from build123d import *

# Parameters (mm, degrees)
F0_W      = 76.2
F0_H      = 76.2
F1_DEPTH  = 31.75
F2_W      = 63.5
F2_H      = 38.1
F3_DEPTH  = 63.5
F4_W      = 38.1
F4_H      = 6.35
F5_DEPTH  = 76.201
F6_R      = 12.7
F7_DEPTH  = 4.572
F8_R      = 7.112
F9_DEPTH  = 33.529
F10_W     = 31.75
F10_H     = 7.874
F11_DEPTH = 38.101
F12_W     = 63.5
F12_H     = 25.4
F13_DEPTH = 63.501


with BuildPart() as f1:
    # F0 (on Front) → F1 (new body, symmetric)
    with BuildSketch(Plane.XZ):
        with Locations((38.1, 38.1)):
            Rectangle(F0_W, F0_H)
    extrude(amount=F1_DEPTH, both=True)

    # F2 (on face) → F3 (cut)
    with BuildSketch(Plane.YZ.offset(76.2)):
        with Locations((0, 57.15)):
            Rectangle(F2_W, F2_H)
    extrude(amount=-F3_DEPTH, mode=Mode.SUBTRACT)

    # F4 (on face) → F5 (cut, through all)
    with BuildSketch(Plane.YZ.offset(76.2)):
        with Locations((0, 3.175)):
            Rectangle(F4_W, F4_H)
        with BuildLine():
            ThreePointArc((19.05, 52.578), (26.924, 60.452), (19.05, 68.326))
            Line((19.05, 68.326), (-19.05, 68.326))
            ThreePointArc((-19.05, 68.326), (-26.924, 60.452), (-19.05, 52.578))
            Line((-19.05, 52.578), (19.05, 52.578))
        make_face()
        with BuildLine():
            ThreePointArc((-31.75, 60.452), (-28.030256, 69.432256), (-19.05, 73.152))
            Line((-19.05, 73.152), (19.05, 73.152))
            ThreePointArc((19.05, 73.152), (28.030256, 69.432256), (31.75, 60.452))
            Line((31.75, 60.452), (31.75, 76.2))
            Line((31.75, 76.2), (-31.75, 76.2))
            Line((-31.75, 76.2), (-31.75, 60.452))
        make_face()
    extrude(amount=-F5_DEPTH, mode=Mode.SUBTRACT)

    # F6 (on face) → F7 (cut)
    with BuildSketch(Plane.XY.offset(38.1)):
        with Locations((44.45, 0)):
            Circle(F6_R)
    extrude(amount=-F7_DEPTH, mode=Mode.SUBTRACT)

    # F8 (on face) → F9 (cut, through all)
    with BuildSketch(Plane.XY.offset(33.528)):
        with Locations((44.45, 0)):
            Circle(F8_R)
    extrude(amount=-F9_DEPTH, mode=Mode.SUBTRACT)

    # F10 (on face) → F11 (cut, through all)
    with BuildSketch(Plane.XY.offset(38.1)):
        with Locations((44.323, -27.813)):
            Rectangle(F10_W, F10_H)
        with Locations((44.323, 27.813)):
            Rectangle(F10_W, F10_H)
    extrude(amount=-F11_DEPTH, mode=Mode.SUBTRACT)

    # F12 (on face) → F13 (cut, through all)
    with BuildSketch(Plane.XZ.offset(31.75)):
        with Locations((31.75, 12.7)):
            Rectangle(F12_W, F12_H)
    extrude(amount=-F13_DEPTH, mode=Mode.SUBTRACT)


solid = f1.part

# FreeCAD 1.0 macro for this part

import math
import FreeCAD as App
import Part
import Sketcher
Q = App.Units.Quantity

doc = App.newDocument("Part")
body = doc.addObject("PartDesign::Body", "Body")

# Sketch on XZ plane
sketch1 = body.newObject("Sketcher::SketchObject", "Sketch")
sketch1.AttachmentSupport = (doc.getObject("XZ_Plane"), [""])
sketch1.MapMode = "FlatFace"
sketch1.addGeometry(Part.LineSegment(App.Vector(0, 76, 0), App.Vector(0, 0, 0)), False)
sketch1.addGeometry(Part.LineSegment(App.Vector(0, 0, 0), App.Vector(76, 0, 0)), False)
sketch1.addGeometry(Part.LineSegment(App.Vector(76, 0, 0), App.Vector(76, 76, 0)), False)
sketch1.addGeometry(Part.LineSegment(App.Vector(76, 76, 0), App.Vector(0, 76, 0)), False)
sketch1.addConstraint(Sketcher.Constraint("Coincident", 0, 2, 1, 1))
sketch1.addConstraint(Sketcher.Constraint("Coincident", 1, 2, 2, 1))
sketch1.addConstraint(Sketcher.Constraint("Coincident", 2, 2, 3, 1))
sketch1.addConstraint(Sketcher.Constraint("Coincident", 3, 2, 0, 1))
sketch1.addConstraint(Sketcher.Constraint("Vertical", 0))
sketch1.addConstraint(Sketcher.Constraint("Horizontal", 1))
sketch1.addConstraint(Sketcher.Constraint("Vertical", 2))
sketch1.addConstraint(Sketcher.Constraint("Horizontal", 3))
sketch1.addConstraint(Sketcher.Constraint("Coincident", 0, 2, -1, 1))
sketch1.addConstraint(Sketcher.Constraint("Equal", 3, 0))
sketch1.addConstraint(Sketcher.Constraint("DistanceX", 1, 1, 1, 2, Q("3 in")))
pad1 = body.newObject("PartDesign::Pad", "Pad")
pad1.Profile = sketch1
pad1.Length = Q("2.5 in")
pad1.Midplane = True

# Sketch on YZ plane
sketch2 = body.newObject("Sketcher::SketchObject", "Sketch001")
sketch2.AttachmentSupport = (doc.getObject("YZ_Plane"), [""])
sketch2.MapMode = "FlatFace"
sketch2.AttachmentOffset = App.Placement(App.Vector(0, 0, 3 * 25.4), App.Rotation())
sketch2.addGeometry(Part.LineSegment(App.Vector(-32, 76, 0), App.Vector(-32, 38, 0)), False)
sketch2.addGeometry(Part.LineSegment(App.Vector(-32, 38, 0), App.Vector(32, 38, 0)), False)
sketch2.addGeometry(Part.LineSegment(App.Vector(32, 38, 0), App.Vector(32, 76, 0)), False)
sketch2.addGeometry(Part.LineSegment(App.Vector(32, 76, 0), App.Vector(-32, 76, 0)), False)
sketch2.addConstraint(Sketcher.Constraint("Coincident", 0, 2, 1, 1))
sketch2.addConstraint(Sketcher.Constraint("Coincident", 1, 2, 2, 1))
sketch2.addConstraint(Sketcher.Constraint("Coincident", 2, 2, 3, 1))
sketch2.addConstraint(Sketcher.Constraint("Coincident", 3, 2, 0, 1))
sketch2.addConstraint(Sketcher.Constraint("Vertical", 0))
sketch2.addConstraint(Sketcher.Constraint("Horizontal", 1))
sketch2.addConstraint(Sketcher.Constraint("Vertical", 2))
sketch2.addConstraint(Sketcher.Constraint("Horizontal", 3))
sketch2.addConstraint(Sketcher.Constraint("DistanceX", 1, 1, 1, 2, Q("2.5 in")))
sketch2.addConstraint(Sketcher.Constraint("DistanceY", 0, 2, 0, 1, Q("1.5 in")))
sketch2.addConstraint(Sketcher.Constraint("DistanceY", -1, 1, 2, 2, Q("3 in")))
sketch2.addConstraint(Sketcher.Constraint("DistanceX", 0, 2, -1, 1, Q("1.25 in")))
pocket1 = body.newObject("PartDesign::Pocket", "Pocket")
pocket1.Profile = sketch2
pocket1.Length = Q("2.5 in")

# Sketch on YZ plane
sketch3 = body.newObject("Sketcher::SketchObject", "Sketch002")
sketch3.AttachmentSupport = (doc.getObject("YZ_Plane"), [""])
sketch3.MapMode = "FlatFace"
sketch3.AttachmentOffset = App.Placement(App.Vector(0, 0, 3 * 25.4), App.Rotation())
sketch3.addGeometry(Part.LineSegment(App.Vector(-19, 6, 0), App.Vector(-19, 0, 0)), False)
sketch3.addGeometry(Part.LineSegment(App.Vector(-19, 0, 0), App.Vector(19, 0, 0)), False)
sketch3.addGeometry(Part.LineSegment(App.Vector(19, 0, 0), App.Vector(19, 6, 0)), False)
sketch3.addGeometry(Part.LineSegment(App.Vector(19, 6, 0), App.Vector(-19, 6, 0)), False)
sketch3.addGeometry(Part.ArcOfCircle(Part.Circle(App.Vector(19, 60, 0), App.Vector(0, 0, 1), 8), math.radians(-90), math.radians(90)), False)
sketch3.addGeometry(Part.LineSegment(App.Vector(19, 68, 0), App.Vector(-19, 68, 0)), False)
sketch3.addGeometry(Part.ArcOfCircle(Part.Circle(App.Vector(-19, 60, 0), App.Vector(0, 0, 1), 8), math.radians(90), math.radians(270)), False)
sketch3.addGeometry(Part.LineSegment(App.Vector(-19, 53, 0), App.Vector(19, 53, 0)), False)
sketch3.addGeometry(Part.ArcOfCircle(Part.Circle(App.Vector(-19, 60, 0), App.Vector(0, 0, 1), 13), math.radians(90), math.radians(180)), False)
sketch3.addGeometry(Part.LineSegment(App.Vector(-19, 73, 0), App.Vector(19, 73, 0)), False)
sketch3.addGeometry(Part.ArcOfCircle(Part.Circle(App.Vector(19, 60, 0), App.Vector(0, 0, 1), 13), math.radians(0), math.radians(90)), False)
sketch3.addGeometry(Part.LineSegment(App.Vector(32, 60, 0), App.Vector(32, 76, 0)), False)
sketch3.addGeometry(Part.LineSegment(App.Vector(32, 76, 0), App.Vector(-32, 76, 0)), False)
sketch3.addGeometry(Part.LineSegment(App.Vector(-32, 76, 0), App.Vector(-32, 60, 0)), False)
sketch3.addConstraint(Sketcher.Constraint("Coincident", 0, 2, 1, 1))
sketch3.addConstraint(Sketcher.Constraint("Coincident", 1, 2, 2, 1))
sketch3.addConstraint(Sketcher.Constraint("Coincident", 2, 2, 3, 1))
sketch3.addConstraint(Sketcher.Constraint("Coincident", 3, 2, 0, 1))
sketch3.addConstraint(Sketcher.Constraint("Tangent", 4, 2, 5, 1))
sketch3.addConstraint(Sketcher.Constraint("Tangent", 5, 2, 6, 1))
sketch3.addConstraint(Sketcher.Constraint("Tangent", 6, 2, 7, 1))
sketch3.addConstraint(Sketcher.Constraint("Tangent", 7, 2, 4, 1))
sketch3.addConstraint(Sketcher.Constraint("Tangent", 8, 1, 9, 1))
sketch3.addConstraint(Sketcher.Constraint("Tangent", 9, 2, 10, 2))
sketch3.addConstraint(Sketcher.Constraint("Tangent", 10, 1, 11, 1))
sketch3.addConstraint(Sketcher.Constraint("Coincident", 11, 2, 12, 1))
sketch3.addConstraint(Sketcher.Constraint("Coincident", 12, 2, 13, 1))
sketch3.addConstraint(Sketcher.Constraint("Tangent", 13, 2, 8, 2))
sketch3.addConstraint(Sketcher.Constraint("Vertical", 0))
sketch3.addConstraint(Sketcher.Constraint("Horizontal", 1))
sketch3.addConstraint(Sketcher.Constraint("Vertical", 2))
sketch3.addConstraint(Sketcher.Constraint("Horizontal", 3))
sketch3.addConstraint(Sketcher.Constraint("Horizontal", 5))
sketch3.addConstraint(Sketcher.Constraint("Horizontal", 7))
sketch3.addConstraint(Sketcher.Constraint("Horizontal", 9))
sketch3.addConstraint(Sketcher.Constraint("Vertical", 11))
sketch3.addConstraint(Sketcher.Constraint("Horizontal", 12))
sketch3.addConstraint(Sketcher.Constraint("Vertical", 13))
sketch3.addConstraint(Sketcher.Constraint("Coincident", 8, 3, 6, 3))
sketch3.addConstraint(Sketcher.Constraint("Coincident", 10, 3, 4, 3))
sketch3.addConstraint(Sketcher.Constraint("Symmetric", 0, 2, 1, 2, -1, 1))
sketch3.addConstraint(Sketcher.Constraint("Vertical", 8, 3, 0, 2))
sketch3.addConstraint(Sketcher.Constraint("Vertical", 10, 3, 1, 2))
sketch3.addConstraint(Sketcher.Constraint("Radius", 8, Q("0.5 in")))
sketch3.addConstraint(Sketcher.Constraint("Radius", 4, Q("0.31 in")))
sketch3.addConstraint(Sketcher.Constraint("DistanceX", 1, 1, 1, 2, Q("1.5 in")))
sketch3.addConstraint(Sketcher.Constraint("DistanceY", -1, 1, 11, 2, Q("3 in")))
sketch3.addConstraint(Sketcher.Constraint("DistanceY", 0, 2, 0, 1, Q("0.25 in")))
sketch3.addConstraint(Sketcher.Constraint("DistanceY", 11, 1, 11, 2, Q("0.62 in")))
pocket2 = body.newObject("PartDesign::Pocket", "Pocket001")
pocket2.Profile = sketch3
pocket2.Type = "ThroughAll"

# Sketch on XY plane
sketch4 = body.newObject("Sketcher::SketchObject", "Sketch003")
sketch4.AttachmentSupport = (doc.getObject("XY_Plane"), [""])
sketch4.MapMode = "FlatFace"
sketch4.AttachmentOffset = App.Placement(App.Vector(0, 0, 1.5 * 25.4), App.Rotation())
sketch4.addGeometry(Part.Circle(App.Vector(44, 0, 0), App.Vector(0, 0, 1), 13), False)
sketch4.addConstraint(Sketcher.Constraint("PointOnObject", 0, 3, -1))
sketch4.addConstraint(Sketcher.Constraint("Diameter", 0, Q("1 in")))
sketch4.addConstraint(Sketcher.Constraint("DistanceX", -1, 1, 0, 3, Q("1.75 in")))
pocket3 = body.newObject("PartDesign::Pocket", "Pocket002")
pocket3.Profile = sketch4
pocket3.Length = Q("0.18 in")

# Sketch on XY plane
sketch5 = body.newObject("Sketcher::SketchObject", "Sketch004")
sketch5.AttachmentSupport = (doc.getObject("XY_Plane"), [""])
sketch5.MapMode = "FlatFace"
sketch5.AttachmentOffset = App.Placement(App.Vector(0, 0, 1.32 * 25.4), App.Rotation())
sketch5.addGeometry(Part.Circle(App.Vector(44, 0, 0), App.Vector(0, 0, 1), 7), False)
sketch5.addConstraint(Sketcher.Constraint("PointOnObject", 0, 3, -1))
sketch5.addConstraint(Sketcher.Constraint("Diameter", 0, Q("0.56 in")))
sketch5.addConstraint(Sketcher.Constraint("DistanceX", -1, 1, 0, 3, Q("1.75 in")))
pocket4 = body.newObject("PartDesign::Pocket", "Pocket003")
pocket4.Profile = sketch5
pocket4.Type = "ThroughAll"

# Sketch on XY plane
sketch6 = body.newObject("Sketcher::SketchObject", "Sketch005")
sketch6.AttachmentSupport = (doc.getObject("XY_Plane"), [""])
sketch6.MapMode = "FlatFace"
sketch6.AttachmentOffset = App.Placement(App.Vector(0, 0, 1.5 * 25.4), App.Rotation())
sketch6.addGeometry(Part.LineSegment(App.Vector(28, -24, 0), App.Vector(28, -32, 0)), False)
sketch6.addGeometry(Part.LineSegment(App.Vector(28, -32, 0), App.Vector(60, -32, 0)), False)
sketch6.addGeometry(Part.LineSegment(App.Vector(60, -32, 0), App.Vector(60, -24, 0)), False)
sketch6.addGeometry(Part.LineSegment(App.Vector(60, -24, 0), App.Vector(28, -24, 0)), False)
sketch6.addGeometry(Part.LineSegment(App.Vector(28, 32, 0), App.Vector(28, 24, 0)), False)
sketch6.addGeometry(Part.LineSegment(App.Vector(28, 24, 0), App.Vector(60, 24, 0)), False)
sketch6.addGeometry(Part.LineSegment(App.Vector(60, 24, 0), App.Vector(60, 32, 0)), False)
sketch6.addGeometry(Part.LineSegment(App.Vector(60, 32, 0), App.Vector(28, 32, 0)), False)
sketch6.addConstraint(Sketcher.Constraint("Coincident", 0, 2, 1, 1))
sketch6.addConstraint(Sketcher.Constraint("Coincident", 1, 2, 2, 1))
sketch6.addConstraint(Sketcher.Constraint("Coincident", 2, 2, 3, 1))
sketch6.addConstraint(Sketcher.Constraint("Coincident", 3, 2, 0, 1))
sketch6.addConstraint(Sketcher.Constraint("Coincident", 4, 2, 5, 1))
sketch6.addConstraint(Sketcher.Constraint("Coincident", 5, 2, 6, 1))
sketch6.addConstraint(Sketcher.Constraint("Coincident", 6, 2, 7, 1))
sketch6.addConstraint(Sketcher.Constraint("Coincident", 7, 2, 4, 1))
sketch6.addConstraint(Sketcher.Constraint("Vertical", 0))
sketch6.addConstraint(Sketcher.Constraint("Horizontal", 1))
sketch6.addConstraint(Sketcher.Constraint("Vertical", 2))
sketch6.addConstraint(Sketcher.Constraint("Horizontal", 3))
sketch6.addConstraint(Sketcher.Constraint("Vertical", 4))
sketch6.addConstraint(Sketcher.Constraint("Horizontal", 5))
sketch6.addConstraint(Sketcher.Constraint("Vertical", 6))
sketch6.addConstraint(Sketcher.Constraint("Horizontal", 7))
sketch6.addConstraint(Sketcher.Constraint("Symmetric", 3, 2, 4, 2, -1))
sketch6.addConstraint(Sketcher.Constraint("Symmetric", 1, 2, 6, 2, -1))
sketch6.addConstraint(Sketcher.Constraint("DistanceX", 1, 1, 1, 2, Q("1.25 in")))
sketch6.addConstraint(Sketcher.Constraint("DistanceY", 0, 2, 0, 1, Q("0.31 in")))
sketch6.addConstraint(Sketcher.Constraint("DistanceY", 1, 2, 6, 2, Q("2.5 in")))
sketch6.addConstraint(Sketcher.Constraint("DistanceX", -1, 1, 0, 2, Q("1.12 in")))
pocket5 = body.newObject("PartDesign::Pocket", "Pocket004")
pocket5.Profile = sketch6
pocket5.Type = "ThroughAll"

# Sketch on XZ plane
sketch7 = body.newObject("Sketcher::SketchObject", "Sketch006")
sketch7.AttachmentSupport = (doc.getObject("XZ_Plane"), [""])
sketch7.MapMode = "FlatFace"
sketch7.AttachmentOffset = App.Placement(App.Vector(0, 0, 1.25 * 25.4), App.Rotation())
sketch7.addGeometry(Part.LineSegment(App.Vector(0, 25, 0), App.Vector(0, 0, 0)), False)
sketch7.addGeometry(Part.LineSegment(App.Vector(0, 0, 0), App.Vector(64, 0, 0)), False)
sketch7.addGeometry(Part.LineSegment(App.Vector(64, 0, 0), App.Vector(64, 25, 0)), False)
sketch7.addGeometry(Part.LineSegment(App.Vector(64, 25, 0), App.Vector(0, 25, 0)), False)
sketch7.addConstraint(Sketcher.Constraint("Coincident", 0, 2, 1, 1))
sketch7.addConstraint(Sketcher.Constraint("Coincident", 1, 2, 2, 1))
sketch7.addConstraint(Sketcher.Constraint("Coincident", 2, 2, 3, 1))
sketch7.addConstraint(Sketcher.Constraint("Coincident", 3, 2, 0, 1))
sketch7.addConstraint(Sketcher.Constraint("Vertical", 0))
sketch7.addConstraint(Sketcher.Constraint("Horizontal", 1))
sketch7.addConstraint(Sketcher.Constraint("Vertical", 2))
sketch7.addConstraint(Sketcher.Constraint("Horizontal", 3))
sketch7.addConstraint(Sketcher.Constraint("Coincident", 0, 2, -1, 1))
sketch7.addConstraint(Sketcher.Constraint("DistanceY", 0, 2, 0, 1, Q("1 in")))
sketch7.addConstraint(Sketcher.Constraint("DistanceX", 1, 1, 1, 2, Q("2.5 in")))
pocket6 = body.newObject("PartDesign::Pocket", "Pocket005")
pocket6.Profile = sketch7
pocket6.Type = "ThroughAll"

doc.recompute()
